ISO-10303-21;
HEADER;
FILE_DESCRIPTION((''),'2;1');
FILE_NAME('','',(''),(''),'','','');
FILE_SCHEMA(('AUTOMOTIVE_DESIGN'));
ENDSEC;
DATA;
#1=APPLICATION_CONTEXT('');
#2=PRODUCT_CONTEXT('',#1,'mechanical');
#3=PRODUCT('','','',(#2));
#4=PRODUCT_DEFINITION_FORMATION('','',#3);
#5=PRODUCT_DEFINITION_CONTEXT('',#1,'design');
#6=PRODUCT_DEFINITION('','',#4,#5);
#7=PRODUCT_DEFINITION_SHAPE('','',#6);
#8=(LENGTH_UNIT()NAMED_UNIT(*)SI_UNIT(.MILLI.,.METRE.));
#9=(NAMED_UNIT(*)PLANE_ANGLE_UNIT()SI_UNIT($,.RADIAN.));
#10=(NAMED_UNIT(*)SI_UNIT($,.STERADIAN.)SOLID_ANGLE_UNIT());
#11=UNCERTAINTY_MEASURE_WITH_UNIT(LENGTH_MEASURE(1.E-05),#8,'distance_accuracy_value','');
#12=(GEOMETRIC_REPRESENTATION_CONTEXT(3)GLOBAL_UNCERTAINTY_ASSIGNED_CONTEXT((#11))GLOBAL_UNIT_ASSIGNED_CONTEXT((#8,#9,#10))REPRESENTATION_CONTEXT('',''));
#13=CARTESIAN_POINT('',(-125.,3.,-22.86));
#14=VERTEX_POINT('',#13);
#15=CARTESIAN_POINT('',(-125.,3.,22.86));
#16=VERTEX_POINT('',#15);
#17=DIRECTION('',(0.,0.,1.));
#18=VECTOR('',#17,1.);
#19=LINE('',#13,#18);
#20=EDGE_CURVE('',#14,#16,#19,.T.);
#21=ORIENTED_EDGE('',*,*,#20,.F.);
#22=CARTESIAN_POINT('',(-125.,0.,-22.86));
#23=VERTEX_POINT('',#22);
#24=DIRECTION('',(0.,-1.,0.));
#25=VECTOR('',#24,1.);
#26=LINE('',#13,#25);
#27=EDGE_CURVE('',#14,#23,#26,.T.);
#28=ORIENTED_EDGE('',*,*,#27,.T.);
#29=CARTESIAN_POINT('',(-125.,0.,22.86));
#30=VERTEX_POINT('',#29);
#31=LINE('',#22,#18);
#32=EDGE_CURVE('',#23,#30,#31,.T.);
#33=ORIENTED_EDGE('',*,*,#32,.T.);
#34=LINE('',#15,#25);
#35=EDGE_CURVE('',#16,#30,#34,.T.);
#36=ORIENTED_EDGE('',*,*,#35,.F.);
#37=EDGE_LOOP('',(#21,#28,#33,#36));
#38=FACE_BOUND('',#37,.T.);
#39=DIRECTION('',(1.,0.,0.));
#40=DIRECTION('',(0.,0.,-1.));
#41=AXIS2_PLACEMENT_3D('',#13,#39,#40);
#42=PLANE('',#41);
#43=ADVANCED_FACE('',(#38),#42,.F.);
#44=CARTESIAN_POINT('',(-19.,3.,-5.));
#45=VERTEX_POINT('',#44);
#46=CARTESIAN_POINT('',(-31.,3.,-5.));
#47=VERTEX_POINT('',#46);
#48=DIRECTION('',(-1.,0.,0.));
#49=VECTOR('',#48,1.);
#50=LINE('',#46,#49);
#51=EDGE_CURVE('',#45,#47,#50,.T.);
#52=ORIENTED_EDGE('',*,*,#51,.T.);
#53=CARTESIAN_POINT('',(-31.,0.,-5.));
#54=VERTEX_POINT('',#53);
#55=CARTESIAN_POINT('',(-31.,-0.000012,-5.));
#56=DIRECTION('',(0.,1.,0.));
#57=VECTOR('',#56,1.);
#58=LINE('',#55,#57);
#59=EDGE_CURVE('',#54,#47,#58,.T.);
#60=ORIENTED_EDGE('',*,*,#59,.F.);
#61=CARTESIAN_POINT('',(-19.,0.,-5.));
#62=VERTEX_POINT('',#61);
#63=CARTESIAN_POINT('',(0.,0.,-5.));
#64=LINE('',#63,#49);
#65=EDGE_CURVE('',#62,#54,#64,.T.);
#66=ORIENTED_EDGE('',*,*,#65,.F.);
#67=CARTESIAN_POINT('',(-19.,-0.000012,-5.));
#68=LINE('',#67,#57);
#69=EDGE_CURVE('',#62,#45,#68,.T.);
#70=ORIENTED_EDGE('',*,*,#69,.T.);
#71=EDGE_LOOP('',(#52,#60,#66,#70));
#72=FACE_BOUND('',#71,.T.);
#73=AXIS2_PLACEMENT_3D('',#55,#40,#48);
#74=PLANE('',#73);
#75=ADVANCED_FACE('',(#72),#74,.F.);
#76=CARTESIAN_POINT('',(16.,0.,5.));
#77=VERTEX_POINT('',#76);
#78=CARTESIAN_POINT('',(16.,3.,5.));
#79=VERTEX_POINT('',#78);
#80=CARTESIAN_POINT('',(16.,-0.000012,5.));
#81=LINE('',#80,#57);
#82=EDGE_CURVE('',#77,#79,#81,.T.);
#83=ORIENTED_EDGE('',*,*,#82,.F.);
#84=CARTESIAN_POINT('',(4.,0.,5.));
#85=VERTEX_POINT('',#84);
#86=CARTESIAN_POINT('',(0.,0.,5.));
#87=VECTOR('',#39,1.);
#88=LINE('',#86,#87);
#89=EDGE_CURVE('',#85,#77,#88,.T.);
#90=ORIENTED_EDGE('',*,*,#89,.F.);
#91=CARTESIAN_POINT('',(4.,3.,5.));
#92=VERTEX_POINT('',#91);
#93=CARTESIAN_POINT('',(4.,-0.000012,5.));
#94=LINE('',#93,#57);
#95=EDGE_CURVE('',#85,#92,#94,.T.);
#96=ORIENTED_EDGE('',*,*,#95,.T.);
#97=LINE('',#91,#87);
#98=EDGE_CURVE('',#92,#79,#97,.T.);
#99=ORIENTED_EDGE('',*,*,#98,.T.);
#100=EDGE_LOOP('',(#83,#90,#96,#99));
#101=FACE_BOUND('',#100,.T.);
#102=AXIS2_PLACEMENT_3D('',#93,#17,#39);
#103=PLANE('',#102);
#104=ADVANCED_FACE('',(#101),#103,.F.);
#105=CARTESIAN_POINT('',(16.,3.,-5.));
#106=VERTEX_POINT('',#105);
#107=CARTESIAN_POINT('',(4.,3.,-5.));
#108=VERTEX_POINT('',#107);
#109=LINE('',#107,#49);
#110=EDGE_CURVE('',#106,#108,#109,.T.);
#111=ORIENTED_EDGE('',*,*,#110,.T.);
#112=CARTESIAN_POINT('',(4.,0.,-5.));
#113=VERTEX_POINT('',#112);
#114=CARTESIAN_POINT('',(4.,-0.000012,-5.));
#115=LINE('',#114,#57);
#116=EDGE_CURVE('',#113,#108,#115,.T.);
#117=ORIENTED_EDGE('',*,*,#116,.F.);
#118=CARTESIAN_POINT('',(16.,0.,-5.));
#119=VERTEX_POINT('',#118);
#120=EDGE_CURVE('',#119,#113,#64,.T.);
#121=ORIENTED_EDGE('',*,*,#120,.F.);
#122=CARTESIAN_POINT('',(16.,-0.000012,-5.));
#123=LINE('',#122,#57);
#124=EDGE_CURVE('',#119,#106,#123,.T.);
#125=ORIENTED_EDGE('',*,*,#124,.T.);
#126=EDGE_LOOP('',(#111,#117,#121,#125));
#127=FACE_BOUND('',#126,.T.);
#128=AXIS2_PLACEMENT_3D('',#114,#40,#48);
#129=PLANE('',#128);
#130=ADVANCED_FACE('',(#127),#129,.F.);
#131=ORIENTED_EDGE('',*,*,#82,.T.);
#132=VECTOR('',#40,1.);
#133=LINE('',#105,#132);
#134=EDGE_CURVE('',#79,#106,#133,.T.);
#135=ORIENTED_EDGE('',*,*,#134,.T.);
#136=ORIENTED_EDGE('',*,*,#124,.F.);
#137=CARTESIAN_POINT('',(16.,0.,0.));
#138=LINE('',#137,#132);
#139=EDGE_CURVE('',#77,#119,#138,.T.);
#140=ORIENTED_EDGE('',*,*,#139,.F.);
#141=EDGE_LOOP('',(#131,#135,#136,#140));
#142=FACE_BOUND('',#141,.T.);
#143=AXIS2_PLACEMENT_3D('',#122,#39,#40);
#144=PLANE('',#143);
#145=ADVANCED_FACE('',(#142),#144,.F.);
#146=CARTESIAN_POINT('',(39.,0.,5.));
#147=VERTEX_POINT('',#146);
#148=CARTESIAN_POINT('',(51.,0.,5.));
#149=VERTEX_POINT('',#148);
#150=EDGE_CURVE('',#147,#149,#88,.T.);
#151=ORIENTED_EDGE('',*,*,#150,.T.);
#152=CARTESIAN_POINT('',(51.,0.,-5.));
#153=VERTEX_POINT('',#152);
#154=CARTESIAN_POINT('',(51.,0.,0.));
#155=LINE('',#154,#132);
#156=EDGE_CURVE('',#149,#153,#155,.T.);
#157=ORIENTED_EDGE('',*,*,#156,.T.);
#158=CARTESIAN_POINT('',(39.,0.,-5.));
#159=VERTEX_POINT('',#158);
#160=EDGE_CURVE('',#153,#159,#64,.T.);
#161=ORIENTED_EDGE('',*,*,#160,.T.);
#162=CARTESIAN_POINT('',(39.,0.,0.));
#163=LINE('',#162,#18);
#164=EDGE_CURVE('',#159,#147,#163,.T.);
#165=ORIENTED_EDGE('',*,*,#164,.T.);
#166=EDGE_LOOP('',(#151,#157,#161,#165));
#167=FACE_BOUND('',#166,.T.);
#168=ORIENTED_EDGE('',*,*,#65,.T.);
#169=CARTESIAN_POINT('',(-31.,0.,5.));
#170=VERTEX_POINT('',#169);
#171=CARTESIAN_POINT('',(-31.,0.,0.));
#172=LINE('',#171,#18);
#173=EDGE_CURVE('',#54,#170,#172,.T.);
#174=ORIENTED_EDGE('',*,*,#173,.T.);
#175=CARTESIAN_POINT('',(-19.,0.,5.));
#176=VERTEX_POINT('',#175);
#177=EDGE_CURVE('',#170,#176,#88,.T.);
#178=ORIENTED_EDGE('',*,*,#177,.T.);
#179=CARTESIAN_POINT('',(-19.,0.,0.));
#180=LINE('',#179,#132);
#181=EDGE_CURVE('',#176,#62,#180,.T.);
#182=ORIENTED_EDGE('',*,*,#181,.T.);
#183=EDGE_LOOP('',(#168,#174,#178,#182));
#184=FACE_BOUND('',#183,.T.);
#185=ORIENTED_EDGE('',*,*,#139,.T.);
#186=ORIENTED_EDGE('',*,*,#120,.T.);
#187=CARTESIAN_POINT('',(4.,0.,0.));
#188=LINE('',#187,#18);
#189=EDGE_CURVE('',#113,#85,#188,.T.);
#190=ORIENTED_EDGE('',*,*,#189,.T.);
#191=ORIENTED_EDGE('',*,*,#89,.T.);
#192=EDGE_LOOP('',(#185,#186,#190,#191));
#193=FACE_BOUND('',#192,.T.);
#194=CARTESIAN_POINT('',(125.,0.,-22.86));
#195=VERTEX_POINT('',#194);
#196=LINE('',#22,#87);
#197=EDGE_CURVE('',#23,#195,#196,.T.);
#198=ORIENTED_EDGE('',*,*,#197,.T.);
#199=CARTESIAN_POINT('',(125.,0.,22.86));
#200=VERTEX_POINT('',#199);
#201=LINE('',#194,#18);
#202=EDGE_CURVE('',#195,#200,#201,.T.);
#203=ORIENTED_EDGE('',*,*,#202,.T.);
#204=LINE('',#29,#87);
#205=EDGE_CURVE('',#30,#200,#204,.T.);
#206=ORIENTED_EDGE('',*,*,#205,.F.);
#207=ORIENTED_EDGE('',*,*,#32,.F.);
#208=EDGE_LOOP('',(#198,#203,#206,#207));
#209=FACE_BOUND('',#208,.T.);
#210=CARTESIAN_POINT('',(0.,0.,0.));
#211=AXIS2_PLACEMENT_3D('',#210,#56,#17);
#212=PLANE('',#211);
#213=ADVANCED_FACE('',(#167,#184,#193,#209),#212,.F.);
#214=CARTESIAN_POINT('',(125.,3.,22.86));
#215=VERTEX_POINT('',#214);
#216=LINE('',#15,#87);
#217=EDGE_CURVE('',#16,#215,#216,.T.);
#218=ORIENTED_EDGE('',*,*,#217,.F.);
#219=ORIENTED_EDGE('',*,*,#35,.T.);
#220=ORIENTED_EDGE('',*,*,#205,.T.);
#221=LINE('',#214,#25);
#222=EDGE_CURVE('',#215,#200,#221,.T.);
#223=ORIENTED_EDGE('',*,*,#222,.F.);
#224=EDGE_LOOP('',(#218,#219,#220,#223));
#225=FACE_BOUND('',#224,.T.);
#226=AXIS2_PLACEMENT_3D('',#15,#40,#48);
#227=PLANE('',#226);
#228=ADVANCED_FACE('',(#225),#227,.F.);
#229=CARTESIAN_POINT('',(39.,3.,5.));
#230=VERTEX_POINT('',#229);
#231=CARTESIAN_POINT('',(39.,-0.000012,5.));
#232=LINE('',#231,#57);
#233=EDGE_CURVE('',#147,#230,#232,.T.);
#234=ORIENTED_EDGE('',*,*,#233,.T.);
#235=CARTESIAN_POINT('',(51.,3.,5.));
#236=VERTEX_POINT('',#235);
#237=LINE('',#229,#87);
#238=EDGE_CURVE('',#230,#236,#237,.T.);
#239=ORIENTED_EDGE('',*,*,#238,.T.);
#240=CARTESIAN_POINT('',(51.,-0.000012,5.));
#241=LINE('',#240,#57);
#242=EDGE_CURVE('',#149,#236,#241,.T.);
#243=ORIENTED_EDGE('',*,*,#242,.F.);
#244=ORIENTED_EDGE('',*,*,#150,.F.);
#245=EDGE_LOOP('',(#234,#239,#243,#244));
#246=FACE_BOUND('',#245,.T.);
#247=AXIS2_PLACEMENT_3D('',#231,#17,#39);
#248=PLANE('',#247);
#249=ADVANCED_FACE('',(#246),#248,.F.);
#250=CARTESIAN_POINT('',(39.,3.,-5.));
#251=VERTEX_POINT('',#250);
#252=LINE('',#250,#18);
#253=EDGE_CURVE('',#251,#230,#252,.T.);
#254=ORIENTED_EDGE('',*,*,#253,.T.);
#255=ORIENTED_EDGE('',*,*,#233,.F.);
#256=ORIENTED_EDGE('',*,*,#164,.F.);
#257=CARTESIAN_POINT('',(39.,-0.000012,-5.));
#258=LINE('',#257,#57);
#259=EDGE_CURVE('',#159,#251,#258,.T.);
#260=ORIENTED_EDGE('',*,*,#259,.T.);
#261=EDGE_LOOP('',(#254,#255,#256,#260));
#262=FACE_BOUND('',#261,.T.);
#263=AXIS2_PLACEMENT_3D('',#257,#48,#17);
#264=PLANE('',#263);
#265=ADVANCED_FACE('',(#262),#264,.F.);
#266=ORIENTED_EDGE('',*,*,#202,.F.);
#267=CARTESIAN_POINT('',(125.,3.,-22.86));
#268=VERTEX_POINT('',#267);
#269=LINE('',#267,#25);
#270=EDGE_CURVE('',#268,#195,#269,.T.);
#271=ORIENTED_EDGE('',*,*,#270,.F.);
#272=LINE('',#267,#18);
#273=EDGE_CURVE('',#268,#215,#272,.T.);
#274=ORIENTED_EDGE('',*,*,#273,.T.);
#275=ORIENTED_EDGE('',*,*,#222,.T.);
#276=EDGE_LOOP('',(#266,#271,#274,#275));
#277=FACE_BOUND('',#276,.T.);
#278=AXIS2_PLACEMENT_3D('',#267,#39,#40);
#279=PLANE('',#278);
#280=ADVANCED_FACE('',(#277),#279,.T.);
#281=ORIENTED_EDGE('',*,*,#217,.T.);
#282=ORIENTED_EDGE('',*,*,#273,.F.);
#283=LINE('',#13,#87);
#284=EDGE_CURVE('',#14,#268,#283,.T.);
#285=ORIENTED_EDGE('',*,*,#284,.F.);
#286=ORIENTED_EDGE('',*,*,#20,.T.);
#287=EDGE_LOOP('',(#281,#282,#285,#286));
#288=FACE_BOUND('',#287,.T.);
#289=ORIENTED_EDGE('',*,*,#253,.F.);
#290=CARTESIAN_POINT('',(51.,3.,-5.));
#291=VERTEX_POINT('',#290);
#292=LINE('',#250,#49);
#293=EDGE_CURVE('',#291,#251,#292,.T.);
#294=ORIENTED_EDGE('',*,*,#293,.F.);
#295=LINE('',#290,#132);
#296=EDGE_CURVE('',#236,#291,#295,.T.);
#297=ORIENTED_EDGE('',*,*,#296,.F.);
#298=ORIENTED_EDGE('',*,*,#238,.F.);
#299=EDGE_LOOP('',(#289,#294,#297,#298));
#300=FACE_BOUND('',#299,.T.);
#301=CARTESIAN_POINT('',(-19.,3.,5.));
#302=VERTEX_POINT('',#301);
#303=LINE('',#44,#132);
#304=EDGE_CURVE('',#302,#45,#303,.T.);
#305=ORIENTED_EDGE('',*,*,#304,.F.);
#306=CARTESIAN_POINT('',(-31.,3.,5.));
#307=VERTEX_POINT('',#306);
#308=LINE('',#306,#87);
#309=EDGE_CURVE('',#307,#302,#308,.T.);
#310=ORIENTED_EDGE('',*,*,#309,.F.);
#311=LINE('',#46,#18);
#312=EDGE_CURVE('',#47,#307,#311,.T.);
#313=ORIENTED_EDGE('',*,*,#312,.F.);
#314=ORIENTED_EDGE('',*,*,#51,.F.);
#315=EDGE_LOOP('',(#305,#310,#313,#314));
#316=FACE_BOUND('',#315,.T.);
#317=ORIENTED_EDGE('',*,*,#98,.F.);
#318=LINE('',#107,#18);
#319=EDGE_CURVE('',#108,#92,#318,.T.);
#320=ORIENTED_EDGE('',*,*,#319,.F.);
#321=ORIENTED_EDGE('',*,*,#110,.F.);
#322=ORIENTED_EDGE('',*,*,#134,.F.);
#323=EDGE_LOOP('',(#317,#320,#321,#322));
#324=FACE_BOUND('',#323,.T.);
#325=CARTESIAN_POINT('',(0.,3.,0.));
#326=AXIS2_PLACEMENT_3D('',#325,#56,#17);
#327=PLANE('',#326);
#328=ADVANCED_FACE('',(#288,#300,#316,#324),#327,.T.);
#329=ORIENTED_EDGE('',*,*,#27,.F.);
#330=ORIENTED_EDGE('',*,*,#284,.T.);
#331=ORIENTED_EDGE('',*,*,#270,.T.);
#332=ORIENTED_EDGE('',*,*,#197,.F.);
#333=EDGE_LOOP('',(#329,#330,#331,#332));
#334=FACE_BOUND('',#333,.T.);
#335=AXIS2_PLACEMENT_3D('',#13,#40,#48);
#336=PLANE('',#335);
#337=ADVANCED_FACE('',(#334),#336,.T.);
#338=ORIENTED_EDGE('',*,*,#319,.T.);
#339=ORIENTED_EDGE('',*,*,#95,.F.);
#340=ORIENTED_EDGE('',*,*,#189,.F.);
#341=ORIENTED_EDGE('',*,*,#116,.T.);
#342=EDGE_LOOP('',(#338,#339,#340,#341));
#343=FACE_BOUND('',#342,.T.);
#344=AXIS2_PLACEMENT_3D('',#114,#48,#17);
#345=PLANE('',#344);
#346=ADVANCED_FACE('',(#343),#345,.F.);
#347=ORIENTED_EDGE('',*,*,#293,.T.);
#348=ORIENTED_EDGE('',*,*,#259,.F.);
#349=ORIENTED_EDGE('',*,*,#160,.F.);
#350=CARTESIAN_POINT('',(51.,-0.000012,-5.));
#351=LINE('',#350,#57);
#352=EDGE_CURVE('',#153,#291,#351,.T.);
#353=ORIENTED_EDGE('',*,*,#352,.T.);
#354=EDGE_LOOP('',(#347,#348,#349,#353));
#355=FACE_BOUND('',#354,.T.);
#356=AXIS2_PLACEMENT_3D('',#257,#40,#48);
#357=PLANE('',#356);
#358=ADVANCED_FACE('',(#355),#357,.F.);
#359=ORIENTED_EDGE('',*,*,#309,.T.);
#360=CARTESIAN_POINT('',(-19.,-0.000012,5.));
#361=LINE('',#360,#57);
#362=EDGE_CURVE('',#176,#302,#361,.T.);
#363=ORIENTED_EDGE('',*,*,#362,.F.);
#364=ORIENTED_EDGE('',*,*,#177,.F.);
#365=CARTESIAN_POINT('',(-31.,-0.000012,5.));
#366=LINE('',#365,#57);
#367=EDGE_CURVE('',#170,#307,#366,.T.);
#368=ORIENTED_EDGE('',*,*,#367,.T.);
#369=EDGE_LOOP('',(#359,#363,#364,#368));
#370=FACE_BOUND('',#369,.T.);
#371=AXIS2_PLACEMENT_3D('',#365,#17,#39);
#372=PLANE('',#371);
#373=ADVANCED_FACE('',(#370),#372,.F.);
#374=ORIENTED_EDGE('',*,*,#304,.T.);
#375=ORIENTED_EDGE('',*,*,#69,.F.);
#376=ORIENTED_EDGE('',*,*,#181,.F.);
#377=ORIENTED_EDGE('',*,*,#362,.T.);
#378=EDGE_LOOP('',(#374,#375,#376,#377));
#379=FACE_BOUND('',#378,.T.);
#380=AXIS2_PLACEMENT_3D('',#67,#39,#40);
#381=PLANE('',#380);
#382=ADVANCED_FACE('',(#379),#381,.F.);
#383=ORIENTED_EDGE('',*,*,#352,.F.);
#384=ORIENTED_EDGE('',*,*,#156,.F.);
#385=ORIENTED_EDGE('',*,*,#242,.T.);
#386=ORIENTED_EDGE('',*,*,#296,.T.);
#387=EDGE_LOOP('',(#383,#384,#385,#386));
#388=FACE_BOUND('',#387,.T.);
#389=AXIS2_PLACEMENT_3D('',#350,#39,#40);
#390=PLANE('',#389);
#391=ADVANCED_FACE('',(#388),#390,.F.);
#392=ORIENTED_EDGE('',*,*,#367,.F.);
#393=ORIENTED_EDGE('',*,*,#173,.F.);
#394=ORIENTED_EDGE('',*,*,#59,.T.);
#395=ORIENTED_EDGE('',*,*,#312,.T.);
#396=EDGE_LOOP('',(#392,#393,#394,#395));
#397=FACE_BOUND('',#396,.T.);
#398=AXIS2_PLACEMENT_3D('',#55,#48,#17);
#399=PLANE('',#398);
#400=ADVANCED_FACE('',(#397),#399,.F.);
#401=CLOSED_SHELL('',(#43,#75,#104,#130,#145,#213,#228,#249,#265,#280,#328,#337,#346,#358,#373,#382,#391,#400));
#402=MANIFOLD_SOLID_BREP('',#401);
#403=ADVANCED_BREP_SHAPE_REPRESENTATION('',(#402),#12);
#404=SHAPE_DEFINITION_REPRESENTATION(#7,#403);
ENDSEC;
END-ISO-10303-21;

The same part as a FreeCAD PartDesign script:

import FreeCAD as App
import Part
import Sketcher
Q = App.Units.Quantity

doc = App.newDocument("Part")
body = doc.addObject("PartDesign::Body", "Body")

sketch1 = body.newObject("Sketcher::SketchObject", "Sketch")
sketch1.AttachmentSupport = (doc.getObject("XZ_Plane"), [""])
sketch1.MapMode = "FlatFace"
sketch1.addGeometry([
    Part.LineSegment(App.Vector(-125, -23, 0), App.Vector(-125, 23, 0)),
    Part.LineSegment(App.Vector(-125, 23, 0), App.Vector(125, 23, 0)),
    Part.LineSegment(App.Vector(125, 23, 0), App.Vector(125, -23, 0)),
    Part.LineSegment(App.Vector(125, -23, 0), App.Vector(-125, -23, 0)),
], False)
sketch1.addConstraint([
    Sketcher.Constraint("Coincident", 0, 2, 1, 1),
    Sketcher.Constraint("Coincident", 1, 2, 2, 1),
    Sketcher.Constraint("Coincident", 2, 2, 3, 1),
    Sketcher.Constraint("Coincident", 3, 2, 0, 1),
    Sketcher.Constraint("Vertical", 0),
    Sketcher.Constraint("Horizontal", 1),
    Sketcher.Constraint("Vertical", 2),
    Sketcher.Constraint("Horizontal", 3),
    Sketcher.Constraint("Symmetric", 0, 2, 2, 2, -1, 1),
    Sketcher.Constraint("DistanceX", 1, 1, 1, 2, Q("250 mm")),
    Sketcher.Constraint("DistanceY", 0, 1, 0, 2, Q("45.72 mm")),
])
pad1 = body.newObject("PartDesign::Pad", "Pad")
pad1.Profile = sketch1
pad1.Length = 3
pad1.Reversed = True

sketch2 = body.newObject("Sketcher::SketchObject", "Sketch001")
sketch2.AttachmentSupport = (doc.getObject("XZ_Plane"), [""])
sketch2.MapMode = "FlatFace"
sketch2.addGeometry([
    Part.LineSegment(App.Vector(-31, -5, 0), App.Vector(-31, 5, 0)),
    Part.LineSegment(App.Vector(-31, 5, 0), App.Vector(-19, 5, 0)),
    Part.LineSegment(App.Vector(-19, 5, 0), App.Vector(-19, -5, 0)),
    Part.LineSegment(App.Vector(-19, -5, 0), App.Vector(-31, -5, 0)),
    Part.LineSegment(App.Vector(4, -5, 0), App.Vector(4, 5, 0)),
    Part.LineSegment(App.Vector(4, 5, 0), App.Vector(16, 5, 0)),
    Part.LineSegment(App.Vector(16, 5, 0), App.Vector(16, -5, 0)),
    Part.LineSegment(App.Vector(16, -5, 0), App.Vector(4, -5, 0)),
    Part.LineSegment(App.Vector(39, -5, 0), App.Vector(39, 5, 0)),
    Part.LineSegment(App.Vector(39, 5, 0), App.Vector(51, 5, 0)),
    Part.LineSegment(App.Vector(51, 5, 0), App.Vector(51, -5, 0)),
    Part.LineSegment(App.Vector(51, -5, 0), App.Vector(39, -5, 0)),
], False)
sketch2.addConstraint([
    Sketcher.Constraint("Coincident", 0, 2, 1, 1),
    Sketcher.Constraint("Coincident", 1, 2, 2, 1),
    Sketcher.Constraint("Coincident", 2, 2, 3, 1),
    Sketcher.Constraint("Coincident", 3, 2, 0, 1),
    Sketcher.Constraint("Coincident", 4, 2, 5, 1),
    Sketcher.Constraint("Coincident", 5, 2, 6, 1),
    Sketcher.Constraint("Coincident", 6, 2, 7, 1),
    Sketcher.Constraint("Coincident", 7, 2, 4, 1),
    Sketcher.Constraint("Coincident", 8, 2, 9, 1),
    Sketcher.Constraint("Coincident", 9, 2, 10, 1),
    Sketcher.Constraint("Coincident", 10, 2, 11, 1),
    Sketcher.Constraint("Coincident", 11, 2, 8, 1),
    Sketcher.Constraint("Vertical", 0),
    Sketcher.Constraint("Horizontal", 1),
    Sketcher.Constraint("Vertical", 2),
    Sketcher.Constraint("Horizontal", 3),
    Sketcher.Constraint("Vertical", 4),
    Sketcher.Constraint("Horizontal", 5),
    Sketcher.Constraint("Vertical", 6),
    Sketcher.Constraint("Horizontal", 7),
    Sketcher.Constraint("Vertical", 8),
    Sketcher.Constraint("Horizontal", 9),
    Sketcher.Constraint("Vertical", 10),
    Sketcher.Constraint("Horizontal", 11),
    Sketcher.Constraint("Horizontal", 1, 2, 4, 2),
    Sketcher.Constraint("Horizontal", 3, 2, 6, 2),
    Sketcher.Constraint("Horizontal", 5, 2, 8, 2),
    Sketcher.Constraint("Horizontal", 7, 2, 10, 2),
    Sketcher.Constraint("Equal", 3, 5),
    Sketcher.Constraint("Equal", 7, 9),
    Sketcher.Constraint("DistanceX", 1, 1, 1, 2, Q("12 mm")),
    Sketcher.Constraint("DistanceY", 0, 1, 0, 2, Q("10 mm")),
    Sketcher.Constraint("DistanceX", 0, 2, -1, 1, Q("31 mm")),
    Sketcher.Constraint("DistanceY", -1, 1, 0, 2, Q("5 mm")),
    Sketcher.Constraint("DistanceX", -1, 1, 4, 2, Q("4 mm")),
    Sketcher.Constraint("DistanceX", -1, 1, 8, 2, Q("39 mm")),
])
pocket1 = body.newObject("PartDesign::Pocket", "Pocket")
pocket1.Profile = sketch2
pocket1.Type = "ThroughAll"
pocket1.Midplane = True

doc.recompute()
